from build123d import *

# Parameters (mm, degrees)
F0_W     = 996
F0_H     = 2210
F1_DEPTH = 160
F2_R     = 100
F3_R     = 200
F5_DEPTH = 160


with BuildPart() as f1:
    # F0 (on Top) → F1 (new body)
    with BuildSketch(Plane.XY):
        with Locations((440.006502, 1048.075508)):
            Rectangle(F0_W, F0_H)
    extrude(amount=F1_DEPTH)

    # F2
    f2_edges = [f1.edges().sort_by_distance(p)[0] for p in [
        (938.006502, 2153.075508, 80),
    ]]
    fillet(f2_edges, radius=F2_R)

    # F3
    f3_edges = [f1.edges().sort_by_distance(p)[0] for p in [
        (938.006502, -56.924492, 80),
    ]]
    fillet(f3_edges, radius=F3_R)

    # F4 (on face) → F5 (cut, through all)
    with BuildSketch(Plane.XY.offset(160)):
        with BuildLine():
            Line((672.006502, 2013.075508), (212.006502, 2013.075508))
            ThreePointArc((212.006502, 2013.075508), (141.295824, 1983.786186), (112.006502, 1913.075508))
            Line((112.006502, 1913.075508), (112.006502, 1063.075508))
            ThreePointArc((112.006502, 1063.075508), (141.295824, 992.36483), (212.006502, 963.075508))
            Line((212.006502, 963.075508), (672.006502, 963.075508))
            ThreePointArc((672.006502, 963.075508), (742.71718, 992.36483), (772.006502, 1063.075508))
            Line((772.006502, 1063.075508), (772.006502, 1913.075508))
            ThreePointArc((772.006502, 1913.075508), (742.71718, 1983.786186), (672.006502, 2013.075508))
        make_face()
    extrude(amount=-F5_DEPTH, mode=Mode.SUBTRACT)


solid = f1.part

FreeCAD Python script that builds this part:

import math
import FreeCAD as App
import Part
import Sketcher


def edges_at(feature, points):
    """Names of the edges that pass closest to the given points."""
    edges = feature.Shape.Edges
    near = lambda p: min(range(len(edges)), key=lambda i: edges[i].distToShape(Part.Vertex(*p))[0])
    return sorted({f"Edge{near(p) + 1}" for p in points})


def add_polygon(sketch, points):
    """Adds a closed chain of lines whose ends are joined by coincident constraints."""
    first, n = sketch.GeometryCount, len(points)
    for a, b in zip(points, points[1:] + points[:1]):
        sketch.addGeometry(Part.LineSegment(App.Vector(*a, 0), App.Vector(*b, 0)), False)
    for i in range(n):
        sketch.addConstraint(Sketcher.Constraint("Coincident", first + i, 2, first + (i + 1) % n, 1))

doc = App.newDocument("Part")
body = doc.addObject("PartDesign::Body", "Body")

sketch1 = body.newObject("Sketcher::SketchObject", "Sketch")
sketch1.AttachmentSupport = (doc.getObject("XY_Plane"), [""])
sketch1.MapMode = "FlatFace"
add_polygon(sketch1, [(-58, 2153), (-58, -57), (938, -57), (938, 2153)])
sketch1.addConstraint(Sketcher.Constraint("Vertical", 0))
sketch1.addConstraint(Sketcher.Constraint("Horizontal", 1))
sketch1.addConstraint(Sketcher.Constraint("Vertical", 2))
sketch1.addConstraint(Sketcher.Constraint("Horizontal", 3))
sketch1.addConstraint(Sketcher.Constraint("DistanceX", 1, 1, 1, 2, 996.0))
sketch1.addConstraint(Sketcher.Constraint("DistanceY", 0, 2, 0, 1, 2210.0))
sketch1.addConstraint(Sketcher.Constraint("DistanceX", 0, 2, -1, 1, 57.993498))
sketch1.addConstraint(Sketcher.Constraint("DistanceY", 0, 2, -1, 1, 56.924492))
pad1 = body.newObject("PartDesign::Pad", "Pad")
pad1.Profile = sketch1
pad1.Length = 160
doc.recompute()

fillet = body.newObject("PartDesign::Fillet", "Fillet")
fillet.Base = (pad1, edges_at(pad1, [(938.007, 2153.076, 80)]))
fillet.Radius = 100
doc.recompute()

fillet2 = body.newObject("PartDesign::Fillet", "Fillet001")
fillet2.Base = (fillet, edges_at(fillet, [(938.007, -56.924, 80)]))
fillet2.Radius = 200

sketch2 = body.newObject("Sketcher::SketchObject", "Sketch001")
sketch2.AttachmentSupport = (doc.getObject("XY_Plane"), [""])
sketch2.MapMode = "FlatFace"
sketch2.AttachmentOffset = App.Placement(App.Vector(0, 0, 160), App.Rotation())
sketch2.addGeometry(Part.LineSegment(App.Vector(672, 2013, 0), App.Vector(212, 2013, 0)), False)
sketch2.addGeometry(Part.ArcOfCircle(Part.Circle(App.Vector(212, 1913, 0), App.Vector(0, 0, 1), 100), math.radians(90), math.radians(180)), False)
sketch2.addGeometry(Part.LineSegment(App.Vector(112, 1913, 0), App.Vector(112, 1063, 0)), False)
sketch2.addGeometry(Part.ArcOfCircle(Part.Circle(App.Vector(212, 1063, 0), App.Vector(0, 0, 1), 100), math.radians(-180), math.radians(-90)), False)
sketch2.addGeometry(Part.LineSegment(App.Vector(212, 963, 0), App.Vector(672, 963, 0)), False)
sketch2.addGeometry(Part.ArcOfCircle(Part.Circle(App.Vector(672, 1063, 0), App.Vector(0, 0, 1), 100), math.radians(-90), math.radians(0)), False)
sketch2.addGeometry(Part.LineSegment(App.Vector(772, 1063, 0), App.Vector(772, 1913, 0)), False)
sketch2.addGeometry(Part.ArcOfCircle(Part.Circle(App.Vector(672, 1913, 0), App.Vector(0, 0, 1), 100), math.radians(0), math.radians(90)), False)
sketch2.addConstraint(Sketcher.Constraint("Tangent", 0, 2, 1, 1))
sketch2.addConstraint(Sketcher.Constraint("Tangent", 1, 2, 2, 1))
sketch2.addConstraint(Sketcher.Constraint("Tangent", 2, 2, 3, 1))
sketch2.addConstraint(Sketcher.Constraint("Tangent", 3, 2, 4, 1))
sketch2.addConstraint(Sketcher.Constraint("Tangent", 4, 2, 5, 1))
sketch2.addConstraint(Sketcher.Constraint("Tangent", 5, 2, 6, 1))
sketch2.addConstraint(Sketcher.Constraint("Tangent", 6, 2, 7, 1))
sketch2.addConstraint(Sketcher.Constraint("Tangent", 7, 2, 0, 1))
sketch2.addConstraint(Sketcher.Constraint("Horizontal", 0))
sketch2.addConstraint(Sketcher.Constraint("Vertical", 2))
sketch2.addConstraint(Sketcher.Constraint("Horizontal", 4))
sketch2.addConstraint(Sketcher.Constraint("Vertical", 6))
sketch2.addConstraint(Sketcher.Constraint("Equal", 1, 3))
sketch2.addConstraint(Sketcher.Constraint("Equal", 3, 5))
sketch2.addConstraint(Sketcher.Constraint("Equal", 5, 7))
sketch2.addConstraint(Sketcher.Constraint("Radius", 1, 100.0))
sketch2.addConstraint(Sketcher.Constraint("DistanceX", 0, 2, 0, 1, 460.0))
sketch2.addConstraint(Sketcher.Constraint("DistanceY", 2, 2, 2, 1, 850.0))
sketch2.addConstraint(Sketcher.Constraint("DistanceX", -1, 1, 5, 3, 672.006502))
sketch2.addConstraint(Sketcher.Constraint("DistanceY", -1, 1, 3, 3, 1063.075508))
pocket1 = body.newObject("PartDesign::Pocket", "Pocket")
pocket1.Profile = sketch2
pocket1.Type = "ThroughAll"

doc.recompute()
